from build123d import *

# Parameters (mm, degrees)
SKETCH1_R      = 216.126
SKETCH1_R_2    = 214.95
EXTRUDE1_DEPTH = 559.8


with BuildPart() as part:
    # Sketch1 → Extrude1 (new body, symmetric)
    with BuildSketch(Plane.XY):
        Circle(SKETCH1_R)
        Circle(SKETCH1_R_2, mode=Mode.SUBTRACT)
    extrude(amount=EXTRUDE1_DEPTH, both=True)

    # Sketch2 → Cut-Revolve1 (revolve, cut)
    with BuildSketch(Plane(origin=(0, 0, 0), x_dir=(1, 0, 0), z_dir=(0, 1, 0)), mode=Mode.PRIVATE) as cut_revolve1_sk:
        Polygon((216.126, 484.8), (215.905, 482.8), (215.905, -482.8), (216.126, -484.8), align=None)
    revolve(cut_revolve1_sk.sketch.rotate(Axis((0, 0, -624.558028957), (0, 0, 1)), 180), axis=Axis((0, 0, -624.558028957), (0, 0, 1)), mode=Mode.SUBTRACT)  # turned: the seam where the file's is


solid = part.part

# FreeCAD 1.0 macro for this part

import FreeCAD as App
import Part
import Sketcher

V = App.Vector

doc = App.newDocument("Part")
body = doc.addObject("PartDesign::Body", "Body")

# Sketch on XY plane
sketch1 = body.newObject("Sketcher::SketchObject", "Sketch")
sketch1.AttachmentSupport = (doc.getObject("XY_Plane"), [""])
sketch1.MapMode = "FlatFace"
sketch1.addGeometry(Part.Circle(V(0, 0, 0), V(0, 0, 1), 216), False)
sketch1.addGeometry(Part.Circle(V(0, 0, 0), V(0, 0, 1), 215), False)
sketch1.addConstraint(Sketcher.Constraint("Coincident", 0, 3, -1, 1))
sketch1.addConstraint(Sketcher.Constraint("Coincident", 1, 3, -1, 1))
sketch1.addConstraint(Sketcher.Constraint("Diameter", 1, 429.9))
sketch1.addConstraint(Sketcher.Constraint("Diameter", 0, 432.252))
pad1 = body.newObject("PartDesign::Pad", "Pad")
pad1.Profile = sketch1
pad1.Length = 1119.6
pad1.Midplane = True

# Sketch on XZ plane
sketch2 = body.newObject("Sketcher::SketchObject", "Sketch001")
sketch2.AttachmentSupport = (doc.getObject("XZ_Plane"), [""])
sketch2.MapMode = "FlatFace"
sketch2.addGeometry(Part.LineSegment(V(216.1, -484.8, 0), V(215.9, -482.8, 0)), False)
sketch2.addGeometry(Part.LineSegment(V(215.9, -482.8, 0), V(215.9, 482.8, 0)), False)
sketch2.addGeometry(Part.LineSegment(V(215.9, 482.8, 0), V(216.1, 484.8, 0)), False)
sketch2.addGeometry(Part.LineSegment(V(216.1, 484.8, 0), V(216.1, -484.8, 0)), False)
sketch2.addConstraint(Sketcher.Constraint("Coincident", 0, 2, 1, 1))
sketch2.addConstraint(Sketcher.Constraint("Coincident", 1, 2, 2, 1))
sketch2.addConstraint(Sketcher.Constraint("Coincident", 2, 2, 3, 1))
sketch2.addConstraint(Sketcher.Constraint("Coincident", 3, 2, 0, 1))
sketch2.addConstraint(Sketcher.Constraint("Vertical", 1))
sketch2.addConstraint(Sketcher.Constraint("Vertical", 3))
sketch2.addConstraint(Sketcher.Constraint("Equal", 0, 2))
sketch2.addConstraint(Sketcher.Constraint("DistanceY", 1, 1, 1, 2, 965.6))
sketch2.addConstraint(Sketcher.Constraint("DistanceY", 3, 2, 3, 1, 969.6))
sketch2.addConstraint(Sketcher.Constraint("DistanceY", 0, 2, -1, 1, 482.8))
sketch2.addConstraint(Sketcher.Constraint("DistanceX", -1, 1, 0, 2, 215.905))
sketch2.addConstraint(Sketcher.Constraint("DistanceX", -1, 1, 2, 2, 216.126))
groove = body.newObject("PartDesign::Groove", "Groove")
groove.Profile = sketch2
groove.ReferenceAxis = (sketch2, ["V_Axis"])
groove.Angle = 360

doc.recompute()
